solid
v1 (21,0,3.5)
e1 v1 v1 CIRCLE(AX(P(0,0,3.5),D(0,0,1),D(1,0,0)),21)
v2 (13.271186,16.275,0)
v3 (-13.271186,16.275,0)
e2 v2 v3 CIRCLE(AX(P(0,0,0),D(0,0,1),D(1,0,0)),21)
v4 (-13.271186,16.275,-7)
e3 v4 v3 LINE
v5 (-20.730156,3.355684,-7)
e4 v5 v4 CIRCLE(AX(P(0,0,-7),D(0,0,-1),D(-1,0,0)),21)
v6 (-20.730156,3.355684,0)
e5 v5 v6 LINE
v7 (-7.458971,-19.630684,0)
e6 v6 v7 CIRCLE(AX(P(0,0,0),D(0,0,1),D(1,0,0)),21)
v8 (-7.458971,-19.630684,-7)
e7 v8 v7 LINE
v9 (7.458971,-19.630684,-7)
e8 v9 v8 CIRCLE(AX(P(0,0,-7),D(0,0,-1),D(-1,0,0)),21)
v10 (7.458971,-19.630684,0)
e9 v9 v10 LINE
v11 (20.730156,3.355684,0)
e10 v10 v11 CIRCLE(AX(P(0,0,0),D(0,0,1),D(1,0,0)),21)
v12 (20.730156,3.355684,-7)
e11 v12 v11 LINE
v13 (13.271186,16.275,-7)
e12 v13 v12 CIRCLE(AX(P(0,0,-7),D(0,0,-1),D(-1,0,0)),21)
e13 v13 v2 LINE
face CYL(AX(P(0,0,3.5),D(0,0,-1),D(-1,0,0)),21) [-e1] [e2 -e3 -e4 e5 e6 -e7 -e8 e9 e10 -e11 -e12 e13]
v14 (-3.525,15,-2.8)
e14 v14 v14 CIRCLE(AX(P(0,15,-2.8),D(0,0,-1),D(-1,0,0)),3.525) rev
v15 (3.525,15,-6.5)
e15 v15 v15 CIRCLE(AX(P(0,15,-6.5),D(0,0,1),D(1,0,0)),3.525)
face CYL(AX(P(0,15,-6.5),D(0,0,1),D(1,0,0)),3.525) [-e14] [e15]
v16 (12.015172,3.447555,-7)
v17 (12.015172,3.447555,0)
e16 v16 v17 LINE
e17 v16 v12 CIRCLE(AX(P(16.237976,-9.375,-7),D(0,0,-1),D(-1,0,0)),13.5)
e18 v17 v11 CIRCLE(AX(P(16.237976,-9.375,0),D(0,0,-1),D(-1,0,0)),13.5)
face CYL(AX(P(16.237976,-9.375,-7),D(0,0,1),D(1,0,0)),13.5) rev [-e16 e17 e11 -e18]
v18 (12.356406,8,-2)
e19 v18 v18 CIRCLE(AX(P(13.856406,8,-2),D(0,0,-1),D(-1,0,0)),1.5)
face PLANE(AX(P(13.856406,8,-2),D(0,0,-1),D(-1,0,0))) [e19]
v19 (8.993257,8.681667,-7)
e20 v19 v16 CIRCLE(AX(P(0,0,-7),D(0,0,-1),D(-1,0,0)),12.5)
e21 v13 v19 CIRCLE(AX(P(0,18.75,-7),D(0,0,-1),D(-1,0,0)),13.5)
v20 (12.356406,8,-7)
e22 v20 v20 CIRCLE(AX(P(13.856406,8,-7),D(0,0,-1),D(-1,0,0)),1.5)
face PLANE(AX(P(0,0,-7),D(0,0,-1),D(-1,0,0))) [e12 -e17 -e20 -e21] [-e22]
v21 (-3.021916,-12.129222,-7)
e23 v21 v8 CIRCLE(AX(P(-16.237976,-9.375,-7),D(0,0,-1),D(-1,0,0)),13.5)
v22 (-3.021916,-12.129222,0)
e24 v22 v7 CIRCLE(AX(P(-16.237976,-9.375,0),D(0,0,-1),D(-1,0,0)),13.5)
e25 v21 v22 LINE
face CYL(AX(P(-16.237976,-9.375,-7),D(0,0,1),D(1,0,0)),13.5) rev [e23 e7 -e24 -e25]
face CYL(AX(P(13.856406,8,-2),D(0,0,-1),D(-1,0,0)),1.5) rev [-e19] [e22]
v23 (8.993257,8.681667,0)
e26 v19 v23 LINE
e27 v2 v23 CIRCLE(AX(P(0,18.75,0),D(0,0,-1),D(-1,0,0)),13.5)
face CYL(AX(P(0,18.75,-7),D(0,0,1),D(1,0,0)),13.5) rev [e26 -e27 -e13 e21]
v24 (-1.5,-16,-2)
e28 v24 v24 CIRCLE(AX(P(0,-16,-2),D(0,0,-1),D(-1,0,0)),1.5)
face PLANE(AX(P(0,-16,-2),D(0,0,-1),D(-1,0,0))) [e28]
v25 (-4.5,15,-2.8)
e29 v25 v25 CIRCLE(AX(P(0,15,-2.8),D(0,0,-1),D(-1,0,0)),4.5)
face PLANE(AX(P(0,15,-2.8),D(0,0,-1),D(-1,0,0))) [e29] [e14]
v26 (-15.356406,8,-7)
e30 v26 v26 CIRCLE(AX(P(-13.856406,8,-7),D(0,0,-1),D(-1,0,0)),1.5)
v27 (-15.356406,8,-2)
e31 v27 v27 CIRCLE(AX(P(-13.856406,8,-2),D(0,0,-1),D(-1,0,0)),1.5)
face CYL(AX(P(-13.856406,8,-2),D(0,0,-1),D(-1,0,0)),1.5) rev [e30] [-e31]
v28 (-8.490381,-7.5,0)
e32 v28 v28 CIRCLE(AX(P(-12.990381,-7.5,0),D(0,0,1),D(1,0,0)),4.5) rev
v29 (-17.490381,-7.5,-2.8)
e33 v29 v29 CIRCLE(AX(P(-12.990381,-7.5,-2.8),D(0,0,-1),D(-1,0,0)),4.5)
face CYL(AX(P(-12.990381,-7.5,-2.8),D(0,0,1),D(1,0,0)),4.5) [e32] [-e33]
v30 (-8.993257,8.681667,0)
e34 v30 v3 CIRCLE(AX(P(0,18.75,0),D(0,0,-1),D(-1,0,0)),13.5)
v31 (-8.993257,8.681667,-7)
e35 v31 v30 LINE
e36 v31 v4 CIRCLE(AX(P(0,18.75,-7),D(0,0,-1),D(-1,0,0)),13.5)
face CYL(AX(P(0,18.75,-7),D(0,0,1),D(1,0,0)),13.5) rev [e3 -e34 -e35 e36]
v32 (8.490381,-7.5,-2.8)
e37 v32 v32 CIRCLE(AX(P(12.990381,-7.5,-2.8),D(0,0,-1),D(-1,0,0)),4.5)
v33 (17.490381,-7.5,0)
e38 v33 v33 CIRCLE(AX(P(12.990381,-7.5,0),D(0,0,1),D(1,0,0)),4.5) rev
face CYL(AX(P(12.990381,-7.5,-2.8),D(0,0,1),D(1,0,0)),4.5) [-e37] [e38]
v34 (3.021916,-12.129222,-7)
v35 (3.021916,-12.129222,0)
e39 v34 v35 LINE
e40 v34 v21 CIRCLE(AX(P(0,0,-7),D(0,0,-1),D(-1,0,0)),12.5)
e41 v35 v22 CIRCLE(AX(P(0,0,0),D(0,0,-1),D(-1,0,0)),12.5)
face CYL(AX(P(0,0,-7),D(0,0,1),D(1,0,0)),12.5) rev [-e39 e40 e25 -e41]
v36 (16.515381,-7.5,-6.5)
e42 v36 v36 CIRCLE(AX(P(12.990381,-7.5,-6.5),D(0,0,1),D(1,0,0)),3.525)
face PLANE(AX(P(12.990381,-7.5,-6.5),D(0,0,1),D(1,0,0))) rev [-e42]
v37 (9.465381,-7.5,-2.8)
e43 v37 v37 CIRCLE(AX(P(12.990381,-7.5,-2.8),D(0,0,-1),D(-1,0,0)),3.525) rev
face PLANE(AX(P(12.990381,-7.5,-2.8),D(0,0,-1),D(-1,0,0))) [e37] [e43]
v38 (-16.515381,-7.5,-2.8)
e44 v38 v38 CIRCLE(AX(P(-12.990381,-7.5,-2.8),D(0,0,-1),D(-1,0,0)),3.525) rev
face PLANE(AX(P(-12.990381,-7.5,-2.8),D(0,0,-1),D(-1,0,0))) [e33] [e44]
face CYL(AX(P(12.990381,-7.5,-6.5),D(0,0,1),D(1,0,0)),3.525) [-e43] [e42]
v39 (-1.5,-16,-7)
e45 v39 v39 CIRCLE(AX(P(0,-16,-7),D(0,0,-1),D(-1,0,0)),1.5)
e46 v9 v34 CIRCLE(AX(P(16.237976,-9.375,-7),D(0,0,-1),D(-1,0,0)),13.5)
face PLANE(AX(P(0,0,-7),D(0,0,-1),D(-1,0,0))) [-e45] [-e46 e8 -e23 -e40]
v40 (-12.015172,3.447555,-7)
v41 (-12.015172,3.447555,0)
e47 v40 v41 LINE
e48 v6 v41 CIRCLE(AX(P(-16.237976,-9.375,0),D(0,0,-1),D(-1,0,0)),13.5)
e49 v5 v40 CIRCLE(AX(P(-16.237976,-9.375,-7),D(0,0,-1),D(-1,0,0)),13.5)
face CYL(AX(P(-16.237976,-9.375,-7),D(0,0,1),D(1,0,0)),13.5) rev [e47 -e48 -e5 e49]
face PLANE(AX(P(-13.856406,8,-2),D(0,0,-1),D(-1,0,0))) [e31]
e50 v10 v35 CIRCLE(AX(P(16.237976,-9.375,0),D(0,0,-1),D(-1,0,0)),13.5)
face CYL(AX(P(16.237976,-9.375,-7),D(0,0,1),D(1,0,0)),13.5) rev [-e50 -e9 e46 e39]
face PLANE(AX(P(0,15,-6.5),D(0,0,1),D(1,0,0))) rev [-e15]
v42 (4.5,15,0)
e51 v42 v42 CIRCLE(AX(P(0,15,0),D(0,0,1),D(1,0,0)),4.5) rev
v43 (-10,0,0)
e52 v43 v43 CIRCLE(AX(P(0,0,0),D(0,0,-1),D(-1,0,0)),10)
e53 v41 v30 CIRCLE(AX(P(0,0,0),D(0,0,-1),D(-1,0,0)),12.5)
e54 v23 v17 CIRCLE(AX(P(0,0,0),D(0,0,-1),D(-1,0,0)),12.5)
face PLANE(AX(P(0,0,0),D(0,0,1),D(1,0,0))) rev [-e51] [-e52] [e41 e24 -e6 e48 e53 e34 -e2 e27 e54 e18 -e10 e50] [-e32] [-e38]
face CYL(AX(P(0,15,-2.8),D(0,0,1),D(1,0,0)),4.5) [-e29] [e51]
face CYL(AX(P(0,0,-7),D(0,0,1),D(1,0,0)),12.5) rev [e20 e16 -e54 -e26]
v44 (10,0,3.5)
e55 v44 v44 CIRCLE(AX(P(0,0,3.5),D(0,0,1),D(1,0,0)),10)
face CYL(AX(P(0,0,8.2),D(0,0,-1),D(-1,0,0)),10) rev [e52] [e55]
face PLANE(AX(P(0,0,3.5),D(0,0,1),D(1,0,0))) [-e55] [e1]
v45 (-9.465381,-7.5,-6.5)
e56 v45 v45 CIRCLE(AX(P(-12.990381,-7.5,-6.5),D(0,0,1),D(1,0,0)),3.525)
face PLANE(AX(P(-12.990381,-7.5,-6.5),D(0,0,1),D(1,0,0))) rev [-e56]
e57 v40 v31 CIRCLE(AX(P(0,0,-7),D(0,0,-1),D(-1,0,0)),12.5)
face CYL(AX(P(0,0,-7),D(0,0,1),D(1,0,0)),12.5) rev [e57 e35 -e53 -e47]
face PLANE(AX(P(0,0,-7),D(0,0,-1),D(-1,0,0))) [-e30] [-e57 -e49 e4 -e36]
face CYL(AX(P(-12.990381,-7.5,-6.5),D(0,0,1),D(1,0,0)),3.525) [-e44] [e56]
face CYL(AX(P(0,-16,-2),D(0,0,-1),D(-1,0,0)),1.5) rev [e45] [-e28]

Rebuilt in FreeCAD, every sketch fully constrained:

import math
import FreeCAD as App
import Part
import Sketcher
from FreeCAD import Vector
Q = App.Units.Quantity

doc = App.newDocument("Part")
body = doc.addObject("PartDesign::Body", "Body")

# Sketch on XY plane
sketch1 = doc.addObject("Sketcher::SketchObject", "Sketch")
body.addObject(sketch1)
sketch1.AttachmentSupport = (doc.XY_Plane, [""])
sketch1.MapMode = "FlatFace"
sketch1.addGeometry(Part.Circle(Vector(0, 0, 0), Vector(0, 0, 1), 21), False)
sketch1.addConstraint([
    Sketcher.Constraint("Coincident", 0, 3, -1, 1),
    Sketcher.Constraint("Diameter", 0, Q("42 mm")),
])
pad1 = doc.addObject("PartDesign::Pad", "Pad")
body.addObject(pad1)
pad1.Profile = sketch1
pad1.Length = 3.5

# Sketch on XY plane
sketch2 = doc.addObject("Sketcher::SketchObject", "Sketch001")
body.addObject(sketch2)
sketch2.AttachmentSupport = (doc.XY_Plane, [""])
sketch2.MapMode = "FlatFace"
sketch2.addGeometry(Part.Circle(Vector(0, 0, 0), Vector(0, 0, 1), 10), False)
sketch2.addConstraint([
    Sketcher.Constraint("Coincident", 0, 3, -1, 1),
    Sketcher.Constraint("Diameter", 0, Q("20 mm")),
])
pocket1 = doc.addObject("PartDesign::Pocket", "Pocket")
body.addObject(pocket1)
pocket1.Profile = sketch2
pocket1.Length = 8.2
pocket1.Reversed = True

# Sketch on XY plane
sketch3 = doc.addObject("Sketcher::SketchObject", "Sketch002")
body.addObject(sketch3)
sketch3.AttachmentSupport = (doc.XY_Plane, [""])
sketch3.MapMode = "FlatFace"
sketch3.addGeometry([
    Part.Circle(Vector(0, 15, 0), Vector(0, 0, 1), 1.5),
    Part.Circle(Vector(-13, -7.5, 0), Vector(0, 0, 1), 1.5),
    Part.Circle(Vector(13, -7.5, 0), Vector(0, 0, 1), 1.5),
], False)
sketch3.addConstraint([
    Sketcher.Constraint("Equal", 0, 1),
    Sketcher.Constraint("Equal", 1, 2),
    Sketcher.Constraint("Symmetric", 1, 3, 2, 3, -2),
    Sketcher.Constraint("PointOnObject", 0, 3, -2),
    Sketcher.Constraint("Diameter", 0, Q("3 mm")),
    Sketcher.Constraint("DistanceY", -1, 1, 0, 3, Q("15 mm")),
    Sketcher.Constraint("DistanceY", 1, 3, -1, 1, Q("7.5 mm")),
    Sketcher.Constraint("DistanceX", 1, 3, -1, 1, Q("12.990381 mm")),
])
pocket2 = doc.addObject("PartDesign::Pocket", "Pocket001")
body.addObject(pocket2)
pocket2.Profile = sketch3
pocket2.Length = 10
pocket2.Reversed = True

# Sketch on XY plane
sketch4 = doc.addObject("Sketcher::SketchObject", "Sketch003")
body.addObject(sketch4)
sketch4.AttachmentSupport = (doc.XY_Plane, [""])
sketch4.MapMode = "FlatFace"
sketch4.AttachmentOffset = App.Placement(Vector(0, 0, -7), App.Rotation())
sketch4.addGeometry([
    Part.ArcOfCircle(Part.Circle(Vector(16, -9, 0), Vector(0, 0, 1), 13), math.radians(-168), math.radians(-131)),  # 0
    Part.ArcOfCircle(Part.Circle(Vector(0, 0, 0), Vector(0, 0, 1), 21), math.radians(-111), math.radians(-69)),  # 1
    Part.ArcOfCircle(Part.Circle(Vector(-16, -9, 0), Vector(0, 0, 1), 13), math.radians(-49), math.radians(-12)),  # 2
    Part.ArcOfCircle(Part.Circle(Vector(0, 0, 0), Vector(0, 0, 1), 12), math.radians(-104), math.radians(-76)),  # 3
    Part.ArcOfCircle(Part.Circle(Vector(16, -9, 0), Vector(0, 0, 1), 13), math.radians(71), math.radians(108)),  # 4
    Part.ArcOfCircle(Part.Circle(Vector(0, 0, 0), Vector(0, 0, 1), 13), math.radians(16), math.radians(44)),  # 5
    Part.ArcOfCircle(Part.Circle(Vector(0, 19, 0), Vector(0, 0, 1), 14), math.radians(-48), math.radians(-11)),  # 6
    Part.ArcOfCircle(Part.Circle(Vector(0, 0, 0), Vector(0, 0, 1), 21), math.radians(9), math.radians(51)),  # 7
    Part.ArcOfCircle(Part.Circle(Vector(0, 0, 0), Vector(0, 0, 1), 13), math.radians(136), math.radians(164)),  # 8
    Part.ArcOfCircle(Part.Circle(Vector(-16, -9, 0), Vector(0, 0, 1), 13), math.radians(72), math.radians(109)),  # 9
    Part.ArcOfCircle(Part.Circle(Vector(0, 0, 0), Vector(0, 0, 1), 21), math.radians(129), math.radians(171)),  # 10
    Part.ArcOfCircle(Part.Circle(Vector(0, 19, 0), Vector(0, 0, 1), 14), math.radians(-169), math.radians(-132)),  # 11
], False)
sketch4.addConstraint([
    Sketcher.Constraint("Coincident", 0, 2, 1, 2),
    Sketcher.Constraint("Coincident", 1, 1, 2, 1),
    Sketcher.Constraint("Coincident", 2, 2, 3, 1),
    Sketcher.Constraint("Coincident", 3, 2, 0, 1),
    Sketcher.Constraint("Coincident", 4, 2, 5, 1),
    Sketcher.Constraint("Coincident", 5, 2, 6, 1),
    Sketcher.Constraint("Coincident", 6, 2, 7, 2),
    Sketcher.Constraint("Coincident", 7, 1, 4, 1),
    Sketcher.Constraint("Coincident", 8, 2, 9, 1),
    Sketcher.Constraint("Coincident", 9, 2, 10, 2),
    Sketcher.Constraint("Coincident", 10, 1, 11, 1),
    Sketcher.Constraint("Coincident", 11, 2, 8, 1),
    Sketcher.Constraint("Coincident", 1, 3, -1, 1),
    Sketcher.Constraint("Coincident", 3, 3, -1, 1),
    Sketcher.Constraint("Coincident", 5, 3, -1, 1),
    Sketcher.Constraint("Coincident", 7, 3, -1, 1),
    Sketcher.Constraint("Coincident", 8, 3, -1, 1),
    Sketcher.Constraint("Coincident", 10, 3, -1, 1),
    Sketcher.Constraint("Coincident", 4, 3, 0, 3),
    Sketcher.Constraint("Coincident", 9, 3, 2, 3),
    Sketcher.Constraint("Coincident", 11, 3, 6, 3),
    Sketcher.Constraint("Equal", 0, 2),
    Sketcher.Constraint("Equal", 2, 4),
    Sketcher.Constraint("Equal", 3, 5),
    Sketcher.Constraint("Equal", 4, 6),
    Sketcher.Constraint("Equal", 1, 7),
    Sketcher.Constraint("Equal", 5, 8),
    Sketcher.Constraint("Equal", 6, 9),
    Sketcher.Constraint("Equal", 7, 10),
    Sketcher.Constraint("Equal", 9, 11),
    Sketcher.Constraint("Symmetric", 0, 3, 2, 3, -2),
    Sketcher.Constraint("PointOnObject", 6, 3, -2),
    Sketcher.Constraint("Radius", 1, Q("21 mm")),
    Sketcher.Constraint("Radius", 0, Q("13.5 mm")),
    Sketcher.Constraint("Radius", 3, Q("12.5 mm")),
    Sketcher.Constraint("DistanceY", -1, 1, 6, 3, Q("18.75 mm")),
    Sketcher.Constraint("DistanceY", 0, 3, -1, 1, Q("9.375 mm")),
    Sketcher.Constraint("DistanceX", 5, 2, 7, 1, Q("11.7369 mm")),
])
pad2 = doc.addObject("PartDesign::Pad", "Pad001")
body.addObject(pad2)
pad2.Profile = sketch4
pad2.Length = 7

# Sketch on XY plane
sketch5 = doc.addObject("Sketcher::SketchObject", "Sketch004")
body.addObject(sketch5)
sketch5.AttachmentSupport = (doc.XY_Plane, [""])
sketch5.MapMode = "FlatFace"
sketch5.AttachmentOffset = App.Placement(Vector(0, 0, -7), App.Rotation())
sketch5.addGeometry([
    Part.Circle(Vector(-13.9, 8, 0), Vector(0, 0, 1), 1.5),
    Part.Circle(Vector(0, -16, 0), Vector(0, 0, 1), 1.5),
    Part.Circle(Vector(13.9, 8, 0), Vector(0, 0, 1), 1.5),
], False)
sketch5.addConstraint([
    Sketcher.Constraint("Equal", 0, 1),
    Sketcher.Constraint("Equal", 1, 2),
    Sketcher.Constraint("Symmetric", 0, 3, 2, 3, -2),
    Sketcher.Constraint("PointOnObject", 1, 3, -2),
    Sketcher.Constraint("Diameter", 0, Q("3 mm")),
    Sketcher.Constraint("DistanceY", -1, 1, 0, 3, Q("8 mm")),
    Sketcher.Constraint("DistanceY", 1, 3, -1, 1, Q("16 mm")),
    Sketcher.Constraint("DistanceX", 0, 3, -1, 1, Q("13.856406 mm")),
])
pocket3 = doc.addObject("PartDesign::Pocket", "Pocket002")
body.addObject(pocket3)
pocket3.Profile = sketch5
pocket3.Length = 5
pocket3.Reversed = True

# Sketch on XY plane
sketch6 = doc.addObject("Sketcher::SketchObject", "Sketch005")
body.addObject(sketch6)
sketch6.AttachmentSupport = (doc.XY_Plane, [""])
sketch6.MapMode = "FlatFace"
sketch6.AttachmentOffset = App.Placement(Vector(0, 0, 3.5), App.Rotation())
sketch6.addGeometry([
    Part.Circle(Vector(0, 15, 0), Vector(0, 0, 1), 3.5),
    Part.Circle(Vector(13, -7.5, 0), Vector(0, 0, 1), 3.5),
    Part.Circle(Vector(-13, -7.5, 0), Vector(0, 0, 1), 3.5),
], False)
sketch6.addConstraint([
    Sketcher.Constraint("Equal", 0, 1),
    Sketcher.Constraint("Equal", 1, 2),
    Sketcher.Constraint("Symmetric", 1, 3, 2, 3, -2),
    Sketcher.Constraint("PointOnObject", 0, 3, -2),
    Sketcher.Constraint("Diameter", 0, Q("7.05 mm")),
    Sketcher.Constraint("DistanceY", -1, 1, 0, 3, Q("15 mm")),
    Sketcher.Constraint("DistanceY", 1, 3, -1, 1, Q("7.5 mm")),
    Sketcher.Constraint("DistanceX", -1, 1, 1, 3, Q("12.990381 mm")),
])
pad3 = doc.addObject("PartDesign::Pad", "Pad002")
body.addObject(pad3)
pad3.Profile = sketch6
pad3.Length = 10
pad3.Reversed = True

# Sketch on XY plane
sketch7 = doc.addObject("Sketcher::SketchObject", "Sketch006")
body.addObject(sketch7)
sketch7.AttachmentSupport = (doc.XY_Plane, [""])
sketch7.MapMode = "FlatFace"
sketch7.addGeometry([
    Part.Circle(Vector(0, 15, 0), Vector(0, 0, 1), 4.5),
    Part.Circle(Vector(-13, -7.5, 0), Vector(0, 0, 1), 4.5),
    Part.Circle(Vector(13, -7.5, 0), Vector(0, 0, 1), 4.5),
], False)
sketch7.addConstraint([
    Sketcher.Constraint("Equal", 0, 1),
    Sketcher.Constraint("Equal", 1, 2),
    Sketcher.Constraint("Symmetric", 1, 3, 2, 3, -2),
    Sketcher.Constraint("PointOnObject", 0, 3, -2),
    Sketcher.Constraint("Diameter", 0, Q("9 mm")),
    Sketcher.Constraint("DistanceY", -1, 1, 0, 3, Q("15 mm")),
    Sketcher.Constraint("DistanceY", 1, 3, -1, 1, Q("7.5 mm")),
    Sketcher.Constraint("DistanceX", 1, 3, -1, 1, Q("12.990381 mm")),
])
pad4 = doc.addObject("PartDesign::Pad", "Pad003")
body.addObject(pad4)
pad4.Profile = sketch7
pad4.Length = 2.8
pad4.Reversed = True

doc.recompute()
